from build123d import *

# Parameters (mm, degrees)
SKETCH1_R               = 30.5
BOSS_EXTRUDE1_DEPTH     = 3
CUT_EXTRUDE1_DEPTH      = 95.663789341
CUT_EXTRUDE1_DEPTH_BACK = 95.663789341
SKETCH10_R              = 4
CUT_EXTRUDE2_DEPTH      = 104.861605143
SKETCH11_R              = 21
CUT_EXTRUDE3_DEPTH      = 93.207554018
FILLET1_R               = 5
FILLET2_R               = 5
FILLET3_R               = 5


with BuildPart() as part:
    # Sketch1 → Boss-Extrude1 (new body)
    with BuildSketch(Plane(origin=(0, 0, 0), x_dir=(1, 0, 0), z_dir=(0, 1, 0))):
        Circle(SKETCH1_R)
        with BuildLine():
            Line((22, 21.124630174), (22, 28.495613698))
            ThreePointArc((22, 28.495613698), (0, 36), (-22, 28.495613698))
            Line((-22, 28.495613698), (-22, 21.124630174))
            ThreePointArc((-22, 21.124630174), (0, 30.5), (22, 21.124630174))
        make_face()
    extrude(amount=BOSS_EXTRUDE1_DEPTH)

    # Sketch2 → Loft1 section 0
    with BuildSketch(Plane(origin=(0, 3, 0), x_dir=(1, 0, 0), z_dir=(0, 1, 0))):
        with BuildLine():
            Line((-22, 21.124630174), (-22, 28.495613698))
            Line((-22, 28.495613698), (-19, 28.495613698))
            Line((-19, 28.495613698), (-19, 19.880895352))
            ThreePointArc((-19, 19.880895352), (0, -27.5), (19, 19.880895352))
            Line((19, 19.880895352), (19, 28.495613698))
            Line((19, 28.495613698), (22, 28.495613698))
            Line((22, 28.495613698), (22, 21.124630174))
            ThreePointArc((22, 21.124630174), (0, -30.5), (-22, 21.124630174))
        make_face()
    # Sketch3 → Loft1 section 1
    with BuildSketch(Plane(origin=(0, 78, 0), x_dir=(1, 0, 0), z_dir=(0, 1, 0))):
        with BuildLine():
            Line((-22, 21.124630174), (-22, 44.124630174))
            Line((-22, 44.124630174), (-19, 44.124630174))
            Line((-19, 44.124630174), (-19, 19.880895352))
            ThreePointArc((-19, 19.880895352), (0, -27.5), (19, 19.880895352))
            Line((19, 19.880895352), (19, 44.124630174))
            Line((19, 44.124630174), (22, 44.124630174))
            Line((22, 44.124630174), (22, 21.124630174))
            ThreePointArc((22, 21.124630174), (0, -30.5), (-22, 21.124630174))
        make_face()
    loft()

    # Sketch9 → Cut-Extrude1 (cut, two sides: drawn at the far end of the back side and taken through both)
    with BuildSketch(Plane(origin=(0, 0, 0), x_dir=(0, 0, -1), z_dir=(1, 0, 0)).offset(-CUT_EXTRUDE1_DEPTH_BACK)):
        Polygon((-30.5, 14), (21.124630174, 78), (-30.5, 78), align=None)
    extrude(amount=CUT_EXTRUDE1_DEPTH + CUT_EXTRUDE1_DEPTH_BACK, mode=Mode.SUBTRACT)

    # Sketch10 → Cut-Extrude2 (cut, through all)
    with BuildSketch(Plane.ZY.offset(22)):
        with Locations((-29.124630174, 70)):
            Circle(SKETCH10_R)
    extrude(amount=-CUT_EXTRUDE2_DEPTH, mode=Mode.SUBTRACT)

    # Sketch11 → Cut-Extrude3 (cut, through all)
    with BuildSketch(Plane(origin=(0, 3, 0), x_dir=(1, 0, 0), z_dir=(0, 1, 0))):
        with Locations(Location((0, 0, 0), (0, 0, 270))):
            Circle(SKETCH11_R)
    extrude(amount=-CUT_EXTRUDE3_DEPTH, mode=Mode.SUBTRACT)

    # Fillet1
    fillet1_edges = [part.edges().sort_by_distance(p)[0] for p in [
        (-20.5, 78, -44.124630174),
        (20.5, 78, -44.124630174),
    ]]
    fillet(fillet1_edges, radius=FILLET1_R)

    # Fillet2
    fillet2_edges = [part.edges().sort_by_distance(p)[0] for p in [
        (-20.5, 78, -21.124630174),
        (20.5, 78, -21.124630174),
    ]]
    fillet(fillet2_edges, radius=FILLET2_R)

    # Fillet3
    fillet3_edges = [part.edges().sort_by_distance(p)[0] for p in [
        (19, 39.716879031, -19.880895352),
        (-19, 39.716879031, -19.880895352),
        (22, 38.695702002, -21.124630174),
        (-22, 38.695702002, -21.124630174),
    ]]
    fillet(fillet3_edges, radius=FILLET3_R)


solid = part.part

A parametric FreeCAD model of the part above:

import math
import FreeCAD as App
import Part
import Sketcher
from FreeCAD import Vector
Q = App.Units.Quantity


def edges_at(feature, points):
    """Names of the edges that pass closest to the given points."""
    edges = feature.Shape.Edges
    near = lambda p: min(range(len(edges)), key=lambda i: edges[i].distToShape(Part.Vertex(*p))[0])
    return sorted({f"Edge{near(p) + 1}" for p in points})


def add_polygon(sketch, points):
    """Adds a closed chain of lines whose ends are joined by coincident constraints."""
    first, n = sketch.GeometryCount, len(points)
    for a, b in zip(points, points[1:] + points[:1]):
        sketch.addGeometry(Part.LineSegment(App.Vector(*a, 0), App.Vector(*b, 0)), False)
    for i in range(n):
        sketch.addConstraint(Sketcher.Constraint("Coincident", first + i, 2, first + (i + 1) % n, 1))

doc = App.newDocument("Part")
params = doc.addObject("Spreadsheet::Sheet", "Params")
for row, (alias, value) in enumerate([
    ("sketch1_radius", "36 mm"),
    ("sketch1_radius2", "30.5 mm"),
    ("pad1_length", "3 mm"),
    ("sketch2_radius", "30.5 mm"),
    ("sketch2_radius2", "27.5 mm"),
    ("sketch2_width", "3 mm"),
    ("sketch3_radius", "30.5 mm"),
    ("sketch3_radius2", "27.5 mm"),
    ("sketch3_width", "3 mm"),
    ("sketch3_height", "23 mm"),
    ("sketch4_width", "64 mm"),
    ("sketch5_diameter", "8 mm"),
    ("sketch6_diameter", "42 mm"),
    ("fillet_radius", "5 mm"),
    ("fillet2_radius", "5 mm"),
    ("fillet3_radius", "5 mm"),
], start=1):
    params.set(f"A{row}", alias)
    params.set(f"B{row}", "=" + value)
    params.setAlias(f"B{row}", alias)

body = doc.addObject("PartDesign::Body", "Body")

# Sketch on XZ plane
sketch1 = doc.addObject("Sketcher::SketchObject", "Sketch")
body.addObject(sketch1)
sketch1.AttachmentSupport = (doc.XZ_Plane, [""])
sketch1.MapMode = "FlatFace"
sketch1.addGeometry([
    Part.LineSegment(Vector(22, -21, 0), Vector(22, -28, 0)),
    Part.ArcOfCircle(Part.Circle(Vector(0, 0, 0), Vector(0, 0, 1), 36), math.radians(-128), math.radians(-52)),
    Part.LineSegment(Vector(-22, -28, 0), Vector(-22, -21, 0)),
    Part.ArcOfCircle(Part.Circle(Vector(0, 0, 0), Vector(0, 0, 1), 30), math.radians(-44), math.radians(224)),
], False)
sketch1.addConstraint([
    Sketcher.Constraint("Coincident", 0, 2, 1, 2),
    Sketcher.Constraint("Coincident", 1, 1, 2, 1),
    Sketcher.Constraint("Coincident", 2, 2, 3, 2),
    Sketcher.Constraint("Coincident", 3, 1, 0, 1),
    Sketcher.Constraint("Vertical", 0),
    Sketcher.Constraint("Vertical", 2),
    Sketcher.Constraint("Coincident", 1, 3, -1, 1),
    Sketcher.Constraint("Coincident", 3, 3, -1, 1),
    Sketcher.Constraint("Horizontal", 0, 2, 1, 1),
    Sketcher.Constraint("Radius", 1, Q("36 mm")),
    Sketcher.Constraint("Radius", 3, Q("30.5 mm")),
    Sketcher.Constraint("DistanceX", -1, 1, 0, 2, Q("22 mm")),
])
sketch1.setExpression("Constraints[9]", "Params.sketch1_radius")
sketch1.setExpression("Constraints[10]", "Params.sketch1_radius2")
pad1 = doc.addObject("PartDesign::Pad", "Pad")
body.addObject(pad1)
pad1.Profile = sketch1
pad1.setExpression("Length", "Params.pad1_length")
pad1.Reversed = True

# Sketch on XZ plane
sketch2 = doc.addObject("Sketcher::SketchObject", "Sketch001")
body.addObject(sketch2)
sketch2.AttachmentSupport = (doc.XZ_Plane, [""])
sketch2.MapMode = "FlatFace"
sketch2.AttachmentOffset = App.Placement(Vector(0, 0, -3), App.Rotation())
sketch2.addGeometry([
    Part.LineSegment(Vector(-22, -28.5, 0), Vector(-22, -21.1, 0)),  # 0
    Part.ArcOfCircle(Part.Circle(Vector(0, 0, 0), Vector(0, 0, 1), 30.5), math.radians(-44), math.radians(224)),  # 1
    Part.LineSegment(Vector(22, -21.1, 0), Vector(22, -28.5, 0)),  # 2
    Part.LineSegment(Vector(22, -28.5, 0), Vector(19, -28.5, 0)),  # 3
    Part.LineSegment(Vector(19, -28.5, 0), Vector(19, -19.9, 0)),  # 4
    Part.ArcOfCircle(Part.Circle(Vector(0, 0, 0), Vector(0, 0, 1), 27.5), math.radians(-46), math.radians(226)),  # 5
    Part.LineSegment(Vector(-19, -19.9, 0), Vector(-19, -28.5, 0)),  # 6
    Part.LineSegment(Vector(-19, -28.5, 0), Vector(-22, -28.5, 0)),  # 7
], False)
sketch2.addConstraint([
    Sketcher.Constraint("Coincident", 0, 2, 1, 2),
    Sketcher.Constraint("Coincident", 1, 1, 2, 1),
    Sketcher.Constraint("Coincident", 2, 2, 3, 1),
    Sketcher.Constraint("Coincident", 3, 2, 4, 1),
    Sketcher.Constraint("Coincident", 4, 2, 5, 1),
    Sketcher.Constraint("Coincident", 5, 2, 6, 1),
    Sketcher.Constraint("Coincident", 6, 2, 7, 1),
    Sketcher.Constraint("Coincident", 7, 2, 0, 1),
    Sketcher.Constraint("Vertical", 0),
    Sketcher.Constraint("Vertical", 2),
    Sketcher.Constraint("Horizontal", 3),
    Sketcher.Constraint("Vertical", 4),
    Sketcher.Constraint("Vertical", 6),
    Sketcher.Constraint("Horizontal", 7),
    Sketcher.Constraint("Coincident", 1, 3, -1, 1),
    Sketcher.Constraint("Coincident", 5, 3, -1, 1),
    Sketcher.Constraint("Symmetric", 3, 2, 6, 2, -2),
    Sketcher.Constraint("Horizontal", 0, 2, 1, 1),
    Sketcher.Constraint("Radius", 1, Q("30.5 mm")),
    Sketcher.Constraint("Radius", 5, Q("27.5 mm")),
    Sketcher.Constraint("DistanceX", 3, 2, 3, 1, Q("3 mm")),
    Sketcher.Constraint("DistanceX", 0, 2, -1, 1, Q("22 mm")),
    Sketcher.Constraint("DistanceY", 4, 1, 4, 2, Q("8.614718 mm")),
])
sketch2.setExpression("Constraints[18]", "Params.sketch2_radius")
sketch2.setExpression("Constraints[19]", "Params.sketch2_radius2")
sketch2.setExpression("Constraints[20]", "Params.sketch2_width")

# Sketch on XZ plane
sketch3 = doc.addObject("Sketcher::SketchObject", "Sketch002")
body.addObject(sketch3)
sketch3.AttachmentSupport = (doc.XZ_Plane, [""])
sketch3.MapMode = "FlatFace"
sketch3.AttachmentOffset = App.Placement(Vector(0, 0, -78), App.Rotation())
sketch3.addGeometry([
    Part.LineSegment(Vector(-22, -44.1, 0), Vector(-22, -21.1, 0)),  # 0
    Part.ArcOfCircle(Part.Circle(Vector(0, 0, 0), Vector(0, 0, 1), 30.5), math.radians(-44), math.radians(224)),  # 1
    Part.LineSegment(Vector(22, -21.1, 0), Vector(22, -44.1, 0)),  # 2
    Part.LineSegment(Vector(22, -44.1, 0), Vector(19, -44.1, 0)),  # 3
    Part.LineSegment(Vector(19, -44.1, 0), Vector(19, -19.9, 0)),  # 4
    Part.ArcOfCircle(Part.Circle(Vector(0, 0, 0), Vector(0, 0, 1), 27.5), math.radians(-46), math.radians(226)),  # 5
    Part.LineSegment(Vector(-19, -19.9, 0), Vector(-19, -44.1, 0)),  # 6
    Part.LineSegment(Vector(-19, -44.1, 0), Vector(-22, -44.1, 0)),  # 7
], False)
sketch3.addConstraint([
    Sketcher.Constraint("Coincident", 0, 2, 1, 2),
    Sketcher.Constraint("Coincident", 1, 1, 2, 1),
    Sketcher.Constraint("Coincident", 2, 2, 3, 1),
    Sketcher.Constraint("Coincident", 3, 2, 4, 1),
    Sketcher.Constraint("Coincident", 4, 2, 5, 1),
    Sketcher.Constraint("Coincident", 5, 2, 6, 1),
    Sketcher.Constraint("Coincident", 6, 2, 7, 1),
    Sketcher.Constraint("Coincident", 7, 2, 0, 1),
    Sketcher.Constraint("Vertical", 0),
    Sketcher.Constraint("Vertical", 2),
    Sketcher.Constraint("Horizontal", 3),
    Sketcher.Constraint("Vertical", 4),
    Sketcher.Constraint("Vertical", 6),
    Sketcher.Constraint("Horizontal", 7),
    Sketcher.Constraint("Coincident", 1, 3, -1, 1),
    Sketcher.Constraint("Coincident", 5, 3, -1, 1),
    Sketcher.Constraint("Symmetric", 3, 2, 6, 2, -2),
    Sketcher.Constraint("Horizontal", 0, 2, 1, 1),
    Sketcher.Constraint("Radius", 1, Q("30.5 mm")),
    Sketcher.Constraint("Radius", 5, Q("27.5 mm")),
    Sketcher.Constraint("DistanceX", 3, 2, 3, 1, Q("3 mm")),
    Sketcher.Constraint("DistanceY", 0, 1, 0, 2, Q("23 mm")),
    Sketcher.Constraint("DistanceX", 0, 2, -1, 1, Q("22 mm")),
])
sketch3.setExpression("Constraints[18]", "Params.sketch3_radius")
sketch3.setExpression("Constraints[19]", "Params.sketch3_radius2")
sketch3.setExpression("Constraints[20]", "Params.sketch3_width")
sketch3.setExpression("Constraints[21]", "Params.sketch3_height")

additiveloft = doc.addObject("PartDesign::AdditiveLoft", "AdditiveLoft")
body.addObject(additiveloft)
additiveloft.Profile = sketch2
additiveloft.Sections = [sketch3]

# Sketch on YZ plane
sketch4 = doc.addObject("Sketcher::SketchObject", "Sketch003")
body.addObject(sketch4)
sketch4.AttachmentSupport = (doc.YZ_Plane, [""])
sketch4.MapMode = "FlatFace"
add_polygon(sketch4, [(14, 30), (78, -21), (78, 30)])  # lines 0-2
sketch4.addConstraint([
    Sketcher.Constraint("Vertical", 1),
    Sketcher.Constraint("Horizontal", 2),
    Sketcher.Constraint("DistanceX", 2, 2, 2, 1, Q("64 mm")),
    Sketcher.Constraint("DistanceX", -1, 1, 0, 2, Q("78 mm")),
    Sketcher.Constraint("DistanceY", -1, 1, 1, 2, Q("30.5 mm")),
    Sketcher.Constraint("DistanceY", 1, 1, 1, 2, Q("51.62463 mm")),
])
sketch4.setExpression("Constraints[5]", "Params.sketch4_width")
pocket1 = doc.addObject("PartDesign::Pocket", "Pocket")
body.addObject(pocket1)
pocket1.Profile = sketch4
pocket1.Type = "ThroughAll"
pocket1.Midplane = True

# Sketch on YZ plane
sketch5 = doc.addObject("Sketcher::SketchObject", "Sketch004")
body.addObject(sketch5)
sketch5.AttachmentSupport = (doc.YZ_Plane, [""])
sketch5.MapMode = "FlatFace"
sketch5.AttachmentOffset = App.Placement(Vector(0, 0, -22), App.Rotation())
sketch5.addGeometry(Part.Circle(Vector(70, -29.1, 0), Vector(0, 0, 1), 4), False)
sketch5.addConstraint([
    Sketcher.Constraint("Diameter", 0, Q("8 mm")),
    Sketcher.Constraint("DistanceX", -1, 1, 0, 3, Q("70 mm")),
    Sketcher.Constraint("DistanceY", 0, 3, -1, 1, Q("29.12463 mm")),
])
sketch5.setExpression("Constraints[0]", "Params.sketch5_diameter")
pocket2 = doc.addObject("PartDesign::Pocket", "Pocket001")
body.addObject(pocket2)
pocket2.Profile = sketch5
pocket2.Type = "ThroughAll"
pocket2.Reversed = True

# Sketch on XZ plane
sketch6 = doc.addObject("Sketcher::SketchObject", "Sketch005")
body.addObject(sketch6)
sketch6.AttachmentSupport = (doc.XZ_Plane, [""])
sketch6.MapMode = "FlatFace"
sketch6.AttachmentOffset = App.Placement(Vector(0, 0, -3), App.Rotation())
sketch6.addGeometry(Part.Circle(Vector(0, 0, 0), Vector(0, 0, 1), 21), False)
sketch6.addConstraint([
    Sketcher.Constraint("Coincident", 0, 3, -1, 1),
    Sketcher.Constraint("Diameter", 0, Q("42 mm")),
])
sketch6.setExpression("Constraints[1]", "Params.sketch6_diameter")
pocket3 = doc.addObject("PartDesign::Pocket", "Pocket002")
body.addObject(pocket3)
pocket3.Profile = sketch6
pocket3.Type = "ThroughAll"
pocket3.Reversed = True
doc.recompute()

fillet = doc.addObject("PartDesign::Fillet", "Fillet")
body.addObject(fillet)
fillet.Base = (pocket3, edges_at(pocket3, [(-20.5, 78, -44.125), (20.5, 78, -44.125)]))
fillet.setExpression("Radius", "Params.fillet_radius")
doc.recompute()

fillet2 = doc.addObject("PartDesign::Fillet", "Fillet001")
body.addObject(fillet2)
fillet2.Base = (fillet, edges_at(fillet, [(-20.5, 78, -21.125), (20.5, 78, -21.125)]))
fillet2.setExpression("Radius", "Params.fillet2_radius")
doc.recompute()

fillet3 = doc.addObject("PartDesign::Fillet", "Fillet002")
body.addObject(fillet3)
fillet3.Base = (fillet2, edges_at(fillet2, [
    (19, 39.717, -19.881),
    (-19, 39.717, -19.881),
    (22, 40.196, -21.125),
    (-22, 40.196, -21.125),
]))
fillet3.setExpression("Radius", "Params.fillet3_radius")

doc.recompute()
